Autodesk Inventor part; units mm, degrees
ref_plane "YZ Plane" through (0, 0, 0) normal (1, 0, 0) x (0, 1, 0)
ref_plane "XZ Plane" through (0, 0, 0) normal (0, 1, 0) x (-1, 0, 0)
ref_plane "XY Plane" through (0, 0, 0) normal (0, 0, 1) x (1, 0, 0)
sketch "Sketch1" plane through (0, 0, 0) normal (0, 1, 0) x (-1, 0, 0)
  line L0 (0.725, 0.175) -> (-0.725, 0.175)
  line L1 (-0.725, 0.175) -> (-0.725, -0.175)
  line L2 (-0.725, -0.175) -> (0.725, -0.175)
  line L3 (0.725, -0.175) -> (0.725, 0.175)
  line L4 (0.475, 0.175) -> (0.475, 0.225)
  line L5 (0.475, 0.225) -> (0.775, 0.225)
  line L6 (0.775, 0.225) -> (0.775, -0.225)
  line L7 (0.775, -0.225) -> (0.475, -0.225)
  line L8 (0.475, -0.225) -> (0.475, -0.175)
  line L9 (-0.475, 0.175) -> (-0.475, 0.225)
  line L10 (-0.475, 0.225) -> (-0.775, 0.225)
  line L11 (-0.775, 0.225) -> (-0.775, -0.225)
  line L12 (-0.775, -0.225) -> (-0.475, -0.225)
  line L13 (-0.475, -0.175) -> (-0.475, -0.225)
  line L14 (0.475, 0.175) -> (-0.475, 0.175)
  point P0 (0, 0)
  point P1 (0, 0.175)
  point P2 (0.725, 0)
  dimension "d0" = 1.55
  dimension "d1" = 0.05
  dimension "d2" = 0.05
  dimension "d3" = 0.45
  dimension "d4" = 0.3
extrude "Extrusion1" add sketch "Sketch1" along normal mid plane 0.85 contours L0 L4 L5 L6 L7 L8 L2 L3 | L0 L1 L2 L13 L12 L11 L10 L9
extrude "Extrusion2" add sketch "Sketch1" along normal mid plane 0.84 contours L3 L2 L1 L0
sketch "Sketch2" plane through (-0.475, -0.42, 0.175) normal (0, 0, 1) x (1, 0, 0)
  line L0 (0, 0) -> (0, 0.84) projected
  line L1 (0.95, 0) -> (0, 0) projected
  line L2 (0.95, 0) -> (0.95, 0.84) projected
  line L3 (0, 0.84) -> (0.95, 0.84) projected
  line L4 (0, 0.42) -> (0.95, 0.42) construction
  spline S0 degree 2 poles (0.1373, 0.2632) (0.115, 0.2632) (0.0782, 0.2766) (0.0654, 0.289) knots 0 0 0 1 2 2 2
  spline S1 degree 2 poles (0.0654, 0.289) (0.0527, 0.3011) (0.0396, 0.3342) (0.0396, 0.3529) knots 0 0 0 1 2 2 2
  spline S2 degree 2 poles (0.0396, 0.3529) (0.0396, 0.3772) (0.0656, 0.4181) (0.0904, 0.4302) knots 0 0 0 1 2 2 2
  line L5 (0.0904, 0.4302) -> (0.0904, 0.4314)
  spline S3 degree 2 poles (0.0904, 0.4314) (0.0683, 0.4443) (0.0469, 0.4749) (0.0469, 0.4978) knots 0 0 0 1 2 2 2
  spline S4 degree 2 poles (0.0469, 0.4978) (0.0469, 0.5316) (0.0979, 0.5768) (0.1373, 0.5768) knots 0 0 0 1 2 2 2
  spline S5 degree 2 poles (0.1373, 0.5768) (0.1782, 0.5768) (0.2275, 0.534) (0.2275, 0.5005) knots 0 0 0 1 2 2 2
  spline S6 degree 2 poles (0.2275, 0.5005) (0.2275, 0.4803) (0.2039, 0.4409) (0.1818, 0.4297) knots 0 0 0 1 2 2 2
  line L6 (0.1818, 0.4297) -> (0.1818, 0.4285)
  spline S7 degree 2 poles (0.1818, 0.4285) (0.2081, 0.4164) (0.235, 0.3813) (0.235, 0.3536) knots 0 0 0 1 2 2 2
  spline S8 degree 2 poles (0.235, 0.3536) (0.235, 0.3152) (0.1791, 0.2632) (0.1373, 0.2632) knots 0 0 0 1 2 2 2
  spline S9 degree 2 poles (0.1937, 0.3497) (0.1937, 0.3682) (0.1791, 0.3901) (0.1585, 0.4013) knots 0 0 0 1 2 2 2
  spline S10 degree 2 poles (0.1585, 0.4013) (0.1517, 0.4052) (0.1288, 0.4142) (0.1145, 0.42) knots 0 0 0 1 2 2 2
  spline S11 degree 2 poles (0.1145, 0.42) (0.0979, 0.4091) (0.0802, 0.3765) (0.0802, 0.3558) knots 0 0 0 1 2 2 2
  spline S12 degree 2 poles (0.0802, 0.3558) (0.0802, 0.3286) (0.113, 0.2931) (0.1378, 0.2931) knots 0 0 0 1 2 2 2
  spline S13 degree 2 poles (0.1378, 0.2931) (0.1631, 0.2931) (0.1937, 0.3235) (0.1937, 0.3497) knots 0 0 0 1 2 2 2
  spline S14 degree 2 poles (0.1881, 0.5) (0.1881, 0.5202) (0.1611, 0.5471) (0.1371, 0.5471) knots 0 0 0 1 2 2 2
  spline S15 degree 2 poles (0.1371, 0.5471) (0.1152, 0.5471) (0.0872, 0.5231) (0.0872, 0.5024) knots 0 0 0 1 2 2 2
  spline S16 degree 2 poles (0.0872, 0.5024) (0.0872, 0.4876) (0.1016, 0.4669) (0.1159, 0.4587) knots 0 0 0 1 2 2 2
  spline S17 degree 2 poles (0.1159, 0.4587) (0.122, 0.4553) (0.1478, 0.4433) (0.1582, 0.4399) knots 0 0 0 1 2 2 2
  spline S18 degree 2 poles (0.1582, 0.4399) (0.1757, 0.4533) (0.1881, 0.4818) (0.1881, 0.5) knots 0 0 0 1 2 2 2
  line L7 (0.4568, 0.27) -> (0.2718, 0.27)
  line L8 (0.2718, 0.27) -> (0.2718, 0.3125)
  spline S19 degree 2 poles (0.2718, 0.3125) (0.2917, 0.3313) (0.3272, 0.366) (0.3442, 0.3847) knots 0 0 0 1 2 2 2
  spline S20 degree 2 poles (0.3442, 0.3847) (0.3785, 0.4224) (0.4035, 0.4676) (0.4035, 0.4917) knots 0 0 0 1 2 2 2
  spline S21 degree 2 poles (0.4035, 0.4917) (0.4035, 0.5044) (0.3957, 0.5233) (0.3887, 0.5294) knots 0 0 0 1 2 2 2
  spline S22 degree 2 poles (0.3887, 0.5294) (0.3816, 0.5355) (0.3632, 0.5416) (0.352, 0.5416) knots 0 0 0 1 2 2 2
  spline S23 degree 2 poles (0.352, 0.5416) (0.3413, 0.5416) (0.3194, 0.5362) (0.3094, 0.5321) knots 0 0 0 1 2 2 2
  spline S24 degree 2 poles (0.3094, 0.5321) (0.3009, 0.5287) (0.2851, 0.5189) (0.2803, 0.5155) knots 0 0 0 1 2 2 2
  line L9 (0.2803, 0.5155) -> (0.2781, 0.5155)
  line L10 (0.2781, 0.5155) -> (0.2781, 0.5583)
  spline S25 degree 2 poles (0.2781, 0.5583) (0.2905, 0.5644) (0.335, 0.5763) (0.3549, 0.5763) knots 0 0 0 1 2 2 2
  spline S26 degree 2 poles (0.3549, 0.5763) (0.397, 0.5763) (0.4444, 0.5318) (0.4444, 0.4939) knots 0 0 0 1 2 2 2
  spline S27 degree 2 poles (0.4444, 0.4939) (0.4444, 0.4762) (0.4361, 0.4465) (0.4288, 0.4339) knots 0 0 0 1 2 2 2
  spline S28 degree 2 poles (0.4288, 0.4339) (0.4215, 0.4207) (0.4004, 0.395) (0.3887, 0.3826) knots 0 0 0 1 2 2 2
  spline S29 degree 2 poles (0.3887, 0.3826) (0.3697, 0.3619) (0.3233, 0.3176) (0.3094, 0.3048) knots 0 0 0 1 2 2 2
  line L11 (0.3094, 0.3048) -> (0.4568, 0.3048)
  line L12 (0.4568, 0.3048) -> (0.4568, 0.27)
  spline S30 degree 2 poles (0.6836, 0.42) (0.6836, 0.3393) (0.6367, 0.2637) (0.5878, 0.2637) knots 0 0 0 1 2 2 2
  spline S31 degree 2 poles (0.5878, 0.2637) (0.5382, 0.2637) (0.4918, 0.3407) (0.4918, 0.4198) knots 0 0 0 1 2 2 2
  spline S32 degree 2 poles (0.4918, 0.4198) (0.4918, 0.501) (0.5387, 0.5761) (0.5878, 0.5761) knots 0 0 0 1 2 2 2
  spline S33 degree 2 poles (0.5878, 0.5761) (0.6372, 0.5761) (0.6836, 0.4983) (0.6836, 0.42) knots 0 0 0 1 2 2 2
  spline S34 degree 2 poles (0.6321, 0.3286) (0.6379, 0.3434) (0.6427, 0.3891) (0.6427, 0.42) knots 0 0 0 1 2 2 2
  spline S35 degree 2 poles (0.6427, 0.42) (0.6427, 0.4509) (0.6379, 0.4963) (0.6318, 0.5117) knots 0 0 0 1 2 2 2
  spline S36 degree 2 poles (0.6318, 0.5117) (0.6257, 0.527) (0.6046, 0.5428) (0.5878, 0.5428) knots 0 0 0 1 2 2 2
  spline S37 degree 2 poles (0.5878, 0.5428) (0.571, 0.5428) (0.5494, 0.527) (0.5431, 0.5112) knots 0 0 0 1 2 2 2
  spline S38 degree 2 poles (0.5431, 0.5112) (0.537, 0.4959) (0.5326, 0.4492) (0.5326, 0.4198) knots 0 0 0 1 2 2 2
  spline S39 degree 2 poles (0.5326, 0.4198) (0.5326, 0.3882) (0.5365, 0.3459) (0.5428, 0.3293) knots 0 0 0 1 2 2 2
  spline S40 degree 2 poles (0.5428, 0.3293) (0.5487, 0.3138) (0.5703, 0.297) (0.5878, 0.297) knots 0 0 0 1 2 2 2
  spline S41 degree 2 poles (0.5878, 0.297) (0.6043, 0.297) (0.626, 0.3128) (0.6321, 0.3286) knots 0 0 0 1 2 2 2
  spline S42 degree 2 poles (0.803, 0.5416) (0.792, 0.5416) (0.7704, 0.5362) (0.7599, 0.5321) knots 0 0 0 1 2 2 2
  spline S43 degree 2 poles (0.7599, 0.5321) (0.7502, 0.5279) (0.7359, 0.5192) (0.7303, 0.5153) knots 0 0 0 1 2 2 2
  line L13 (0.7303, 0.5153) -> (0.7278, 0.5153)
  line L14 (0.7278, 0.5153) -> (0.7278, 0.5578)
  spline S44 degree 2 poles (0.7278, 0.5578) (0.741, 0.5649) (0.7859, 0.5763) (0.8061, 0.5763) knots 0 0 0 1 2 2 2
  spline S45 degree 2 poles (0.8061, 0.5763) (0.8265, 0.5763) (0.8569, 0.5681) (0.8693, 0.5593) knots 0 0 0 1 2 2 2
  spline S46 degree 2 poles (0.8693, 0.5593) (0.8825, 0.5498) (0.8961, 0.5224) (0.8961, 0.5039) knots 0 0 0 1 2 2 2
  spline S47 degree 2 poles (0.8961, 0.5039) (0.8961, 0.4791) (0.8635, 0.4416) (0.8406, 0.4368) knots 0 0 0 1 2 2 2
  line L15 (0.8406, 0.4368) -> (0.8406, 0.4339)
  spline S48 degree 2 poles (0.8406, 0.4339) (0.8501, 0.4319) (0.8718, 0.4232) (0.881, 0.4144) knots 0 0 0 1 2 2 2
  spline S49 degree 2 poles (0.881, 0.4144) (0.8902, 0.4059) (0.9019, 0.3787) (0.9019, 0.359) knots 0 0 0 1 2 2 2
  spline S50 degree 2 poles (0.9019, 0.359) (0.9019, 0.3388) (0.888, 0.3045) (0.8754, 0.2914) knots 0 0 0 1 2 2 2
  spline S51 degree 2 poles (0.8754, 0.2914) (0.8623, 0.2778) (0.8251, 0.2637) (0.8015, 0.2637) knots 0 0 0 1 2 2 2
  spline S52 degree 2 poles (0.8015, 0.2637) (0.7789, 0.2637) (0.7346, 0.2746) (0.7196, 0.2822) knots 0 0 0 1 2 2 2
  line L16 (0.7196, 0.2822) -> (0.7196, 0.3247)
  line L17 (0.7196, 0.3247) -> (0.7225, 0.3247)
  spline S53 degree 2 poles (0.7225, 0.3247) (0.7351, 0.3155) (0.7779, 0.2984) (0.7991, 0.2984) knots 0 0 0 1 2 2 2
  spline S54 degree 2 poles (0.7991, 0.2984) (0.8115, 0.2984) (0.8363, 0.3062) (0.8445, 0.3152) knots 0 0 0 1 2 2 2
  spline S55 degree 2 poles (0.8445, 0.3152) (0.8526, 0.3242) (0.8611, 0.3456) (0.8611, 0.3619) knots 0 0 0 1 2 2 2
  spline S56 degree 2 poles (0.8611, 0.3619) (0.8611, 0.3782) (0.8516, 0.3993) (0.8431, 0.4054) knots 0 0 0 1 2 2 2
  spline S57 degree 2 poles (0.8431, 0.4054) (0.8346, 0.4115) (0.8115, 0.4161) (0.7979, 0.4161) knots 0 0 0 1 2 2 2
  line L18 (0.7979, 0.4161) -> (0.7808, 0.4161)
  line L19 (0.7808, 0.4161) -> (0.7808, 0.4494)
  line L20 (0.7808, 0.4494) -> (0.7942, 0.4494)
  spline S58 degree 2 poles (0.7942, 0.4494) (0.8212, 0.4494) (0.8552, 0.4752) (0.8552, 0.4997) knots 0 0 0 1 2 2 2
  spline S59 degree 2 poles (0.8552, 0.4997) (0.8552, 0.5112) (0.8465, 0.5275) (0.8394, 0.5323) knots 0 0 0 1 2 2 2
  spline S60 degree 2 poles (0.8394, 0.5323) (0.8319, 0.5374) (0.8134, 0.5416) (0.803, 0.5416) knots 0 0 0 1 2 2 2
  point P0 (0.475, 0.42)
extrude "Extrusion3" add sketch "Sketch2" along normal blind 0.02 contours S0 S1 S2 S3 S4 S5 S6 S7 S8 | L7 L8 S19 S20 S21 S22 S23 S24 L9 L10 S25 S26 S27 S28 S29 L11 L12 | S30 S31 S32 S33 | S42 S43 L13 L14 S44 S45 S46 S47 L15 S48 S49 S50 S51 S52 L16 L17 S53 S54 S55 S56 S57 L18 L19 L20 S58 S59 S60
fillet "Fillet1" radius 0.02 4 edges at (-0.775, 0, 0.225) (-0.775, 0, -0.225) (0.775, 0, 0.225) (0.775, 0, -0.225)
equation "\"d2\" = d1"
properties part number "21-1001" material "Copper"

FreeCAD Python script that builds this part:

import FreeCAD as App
import Part
import Sketcher


def edges_at(feature, points):
    """Names of the edges that pass closest to the given points."""
    edges = feature.Shape.Edges
    near = lambda p: min(range(len(edges)), key=lambda i: edges[i].distToShape(Part.Vertex(*p))[0])
    return sorted({f"Edge{near(p) + 1}" for p in points})


def add_polygon(sketch, points):
    """Adds a closed chain of lines whose ends are joined by coincident constraints."""
    first, n = sketch.GeometryCount, len(points)
    for a, b in zip(points, points[1:] + points[:1]):
        sketch.addGeometry(Part.LineSegment(App.Vector(*a, 0), App.Vector(*b, 0)), False)
    for i in range(n):
        sketch.addConstraint(Sketcher.Constraint("Coincident", first + i, 2, first + (i + 1) % n, 1))

doc = App.newDocument("Part")
body = doc.addObject("PartDesign::Body", "Body")
body.AllowCompound = True

# Sketch on XZ plane
sketch1 = body.newObject("Sketcher::SketchObject", "Sketch")
sketch1.AttachmentSupport = (doc.getObject("XZ_Plane"), [""])
sketch1.MapMode = "FlatFace"
add_polygon(sketch1, [(-0.47, 0.17), (-0.72, 0.17), (-0.72, -0.17), (-0.47, -0.17), (-0.47, -0.23), (-0.78, -0.23), (-0.78, 0.23), (-0.47, 0.23)])  # lines 0-7
add_polygon(sketch1, [(0.72, 0.17), (0.47, 0.17), (0.47, 0.23), (0.78, 0.23), (0.78, -0.23), (0.47, -0.23), (0.47, -0.17), (0.72, -0.17)])  # lines 8-15
sketch1.addConstraint(Sketcher.Constraint("Horizontal", 0))
sketch1.addConstraint(Sketcher.Constraint("Vertical", 1))
sketch1.addConstraint(Sketcher.Constraint("Horizontal", 2))
sketch1.addConstraint(Sketcher.Constraint("Vertical", 3))
sketch1.addConstraint(Sketcher.Constraint("Horizontal", 4))
sketch1.addConstraint(Sketcher.Constraint("Vertical", 5))
sketch1.addConstraint(Sketcher.Constraint("Horizontal", 6))
sketch1.addConstraint(Sketcher.Constraint("Vertical", 7))
sketch1.addConstraint(Sketcher.Constraint("Horizontal", 8))
sketch1.addConstraint(Sketcher.Constraint("Vertical", 9))
sketch1.addConstraint(Sketcher.Constraint("Horizontal", 10))
sketch1.addConstraint(Sketcher.Constraint("Vertical", 11))
sketch1.addConstraint(Sketcher.Constraint("Horizontal", 12))
sketch1.addConstraint(Sketcher.Constraint("Vertical", 13))
sketch1.addConstraint(Sketcher.Constraint("Horizontal", 14))
sketch1.addConstraint(Sketcher.Constraint("Vertical", 15))
sketch1.addConstraint(Sketcher.Constraint("Symmetric", 2, 2, 8, 2, -1, 1))
sketch1.addConstraint(Sketcher.Constraint("Symmetric", 4, 2, 10, 2, -1, 1))
sketch1.addConstraint(Sketcher.Constraint("Symmetric", 6, 2, 12, 2, -1, 1))
sketch1.addConstraint(Sketcher.Constraint("Symmetric", 0, 2, 14, 2, -1, 1))
sketch1.addConstraint(Sketcher.Constraint("Symmetric", 7, 2, 8, 2, -2))
sketch1.addConstraint(Sketcher.Constraint("Horizontal", 6, 2, 9, 2))
sketch1.addConstraint(Sketcher.Constraint("DistanceX", 4, 2, 4, 1, 0.3))
sketch1.addConstraint(Sketcher.Constraint("DistanceY", 3, 2, 3, 1, 0.05))
sketch1.addConstraint(Sketcher.Constraint("DistanceY", 5, 1, 5, 2, 0.45))
sketch1.addConstraint(Sketcher.Constraint("DistanceX", 4, 2, 1, 2, 0.05))
sketch1.addConstraint(Sketcher.Constraint("DistanceX", 0, 2, 8, 2, 1.2))
pad1 = body.newObject("PartDesign::Pad", "Pad")
pad1.Profile = sketch1
pad1.Length = 0.85
pad1.Midplane = True

# Sketch on XZ plane
sketch2 = body.newObject("Sketcher::SketchObject", "Sketch001")
sketch2.AttachmentSupport = (doc.getObject("XZ_Plane"), [""])
sketch2.MapMode = "FlatFace"
add_polygon(sketch2, [(-0.72, -0.17), (-0.72, 0.17), (0.72, 0.17), (0.72, -0.17)])  # lines 0-3
sketch2.addConstraint(Sketcher.Constraint("Vertical", 0))
sketch2.addConstraint(Sketcher.Constraint("Horizontal", 1))
sketch2.addConstraint(Sketcher.Constraint("Vertical", 2))
sketch2.addConstraint(Sketcher.Constraint("Horizontal", 3))
sketch2.addConstraint(Sketcher.Constraint("Symmetric", 0, 2, 2, 2, -1, 1))
sketch2.addConstraint(Sketcher.Constraint("DistanceX", 1, 1, 1, 2, 1.45))
sketch2.addConstraint(Sketcher.Constraint("DistanceY", 0, 1, 0, 2, 0.35))
pad2 = body.newObject("PartDesign::Pad", "Pad001")
pad2.Profile = sketch2
pad2.Length = 0.84
pad2.Midplane = True

# Sketch on XY plane
sketch3 = body.newObject("Sketcher::SketchObject", "Sketch002")
sketch3.AttachmentSupport = (doc.getObject("XY_Plane"), [""])
sketch3.MapMode = "FlatFace"
sketch3.AttachmentOffset = App.Placement(App.Vector(0, 0, 0.175), App.Rotation())
sketch3.addGeometry(Part.BSplineCurve([App.Vector(-0.3377, -0.1568, 0), App.Vector(-0.36, -0.1568, 0), App.Vector(-0.3968, -0.1434, 0), App.Vector(-0.4096, -0.131, 0)], [3, 1, 3], [0, 1, 2], False, 2, [1, 1, 1, 1], False), False)
sketch3.addGeometry(Part.BSplineCurve([App.Vector(-0.24, -0.0664, 0), App.Vector(-0.24, -0.1048, 0), App.Vector(-0.2959, -0.1568, 0), App.Vector(-0.3377, -0.1568, 0)], [3, 1, 3], [0, 1, 2], False, 2, [1, 1, 1, 1], False), False)
sketch3.addGeometry(Part.BSplineCurve([App.Vector(-0.2932, 0.0097, 0), App.Vector(-0.2669, -0.0036, 0), App.Vector(-0.24, -0.0387, 0), App.Vector(-0.24, -0.0664, 0)], [3, 1, 3], [0, 1, 2], False, 2, [1, 1, 1, 1], False), False)
sketch3.addGeometry(Part.BSplineCurve([App.Vector(-0.2475, 0.0805, 0), App.Vector(-0.2475, 0.0603, 0), App.Vector(-0.2711, 0.0209, 0), App.Vector(-0.2932, 0.0097, 0)], [3, 1, 3], [0, 1, 2], False, 2, [1, 1, 1, 1], False), False)
sketch3.addGeometry(Part.BSplineCurve([App.Vector(-0.3377, 0.1568, 0), App.Vector(-0.2968, 0.1568, 0), App.Vector(-0.2475, 0.114, 0), App.Vector(-0.2475, 0.0805, 0)], [3, 1, 3], [0, 1, 2], False, 2, [1, 1, 1, 1], False), False)
sketch3.addGeometry(Part.BSplineCurve([App.Vector(-0.4281, 0.0778, 0), App.Vector(-0.4281, 0.1116, 0), App.Vector(-0.3771, 0.1568, 0), App.Vector(-0.3377, 0.1568, 0)], [3, 1, 3], [0, 1, 2], False, 2, [1, 1, 1, 1], False), False)
sketch3.addGeometry(Part.BSplineCurve([App.Vector(-0.3846, 0.0102, 0), App.Vector(-0.4067, 0.0243, 0), App.Vector(-0.4281, 0.0549, 0), App.Vector(-0.4281, 0.0778, 0)], [3, 1, 3], [0, 1, 2], False, 2, [1, 1, 1, 1], False), False)
sketch3.addGeometry(Part.BSplineCurve([App.Vector(-0.4354, -0.0671, 0), App.Vector(-0.4354, -0.0428, 0), App.Vector(-0.4094, -0.0019, 0), App.Vector(-0.3846, 0.0102, 0)], [3, 1, 3], [0, 1, 2], False, 2, [1, 1, 1, 1], False), False)
sketch3.addGeometry(Part.BSplineCurve([App.Vector(-0.4096, -0.131, 0), App.Vector(-0.4223, -0.1189, 0), App.Vector(-0.4354, -0.0858, 0), App.Vector(-0.4354, -0.0671, 0)], [3, 1, 3], [0, 1, 2], False, 2, [1, 1, 1, 1], False), False)
sketch3.addGeometry(Part.BSplineCurve([App.Vector(-0.2813, -0.0703, 0), App.Vector(-0.2813, -0.0518, 0), App.Vector(-0.2959, -0.0299, 0), App.Vector(-0.3165, -0.0187, 0)], [3, 1, 3], [0, 1, 2], False, 2, [1, 1, 1, 1], False), False)
sketch3.addGeometry(Part.BSplineCurve([App.Vector(-0.3372, -0.1269, 0), App.Vector(-0.3119, -0.1269, 0), App.Vector(-0.2813, -0.0965, 0), App.Vector(-0.2813, -0.0703, 0)], [3, 1, 3], [0, 1, 2], False, 2, [1, 1, 1, 1], False), False)
sketch3.addGeometry(Part.BSplineCurve([App.Vector(-0.3948, -0.0642, 0), App.Vector(-0.3948, -0.0914, 0), App.Vector(-0.362, -0.1269, 0), App.Vector(-0.3372, -0.1269, 0)], [3, 1, 3], [0, 1, 2], False, 2, [1, 1, 1, 1], False), False)
sketch3.addGeometry(Part.BSplineCurve([App.Vector(-0.3605, 0, 0), App.Vector(-0.3771, -0.0109, 0), App.Vector(-0.3948, -0.0435, 0), App.Vector(-0.3948, -0.0642, 0)], [3, 1, 3], [0, 1, 2], False, 2, [1, 1, 1, 1], False), False)
sketch3.addGeometry(Part.BSplineCurve([App.Vector(-0.3165, -0.0187, 0), App.Vector(-0.3233, -0.0148, 0), App.Vector(-0.3462, -0.0058, 0), App.Vector(-0.3605, 0, 0)], [3, 1, 3], [0, 1, 2], False, 2, [1, 1, 1, 1], False), False)
sketch3.addGeometry(Part.BSplineCurve([App.Vector(-0.2869, 0.08, 0), App.Vector(-0.2869, 0.1002, 0), App.Vector(-0.3139, 0.1271, 0), App.Vector(-0.3379, 0.1271, 0)], [3, 1, 3], [0, 1, 2], False, 2, [1, 1, 1, 1], False), False)
sketch3.addGeometry(Part.BSplineCurve([App.Vector(-0.3168, 0.0199, 0), App.Vector(-0.2993, 0.0333, 0), App.Vector(-0.2869, 0.0618, 0), App.Vector(-0.2869, 0.08, 0)], [3, 1, 3], [0, 1, 2], False, 2, [1, 1, 1, 1], False), False)
sketch3.addGeometry(Part.BSplineCurve([App.Vector(-0.3591, 0.0387, 0), App.Vector(-0.353, 0.0353, 0), App.Vector(-0.3272, 0.0233, 0), App.Vector(-0.3168, 0.0199, 0)], [3, 1, 3], [0, 1, 2], False, 2, [1, 1, 1, 1], False), False)
sketch3.addGeometry(Part.BSplineCurve([App.Vector(-0.3878, 0.0824, 0), App.Vector(-0.3878, 0.0676, 0), App.Vector(-0.3734, 0.0469, 0), App.Vector(-0.3591, 0.0387, 0)], [3, 1, 3], [0, 1, 2], False, 2, [1, 1, 1, 1], False), False)
sketch3.addGeometry(Part.BSplineCurve([App.Vector(-0.3379, 0.1271, 0), App.Vector(-0.3598, 0.1271, 0), App.Vector(-0.3878, 0.1031, 0), App.Vector(-0.3878, 0.0824, 0)], [3, 1, 3], [0, 1, 2], False, 2, [1, 1, 1, 1], False), False)
sketch3.addGeometry(Part.LineSegment(App.Vector(-0.2032, -0.15, 0), App.Vector(-0.0182, -0.15, 0)), False)
sketch3.addGeometry(Part.LineSegment(App.Vector(-0.0182, -0.15, 0), App.Vector(-0.0182, -0.1152, 0)), False)
sketch3.addGeometry(Part.LineSegment(App.Vector(-0.0182, -0.1152, 0), App.Vector(-0.1656, -0.1152, 0)), False)
sketch3.addGeometry(Part.BSplineCurve([App.Vector(-0.0863, -0.0374, 0), App.Vector(-0.1053, -0.0581, 0), App.Vector(-0.1517, -0.1024, 0), App.Vector(-0.1656, -0.1152, 0)], [3, 1, 3], [0, 1, 2], False, 2, [1, 1, 1, 1], False), False)
sketch3.addGeometry(Part.BSplineCurve([App.Vector(-0.0462, 0.0139, 0), App.Vector(-0.0535, 0.0007, 0), App.Vector(-0.0746, -0.025, 0), App.Vector(-0.0863, -0.0374, 0)], [3, 1, 3], [0, 1, 2], False, 2, [1, 1, 1, 1], False), False)
sketch3.addGeometry(Part.BSplineCurve([App.Vector(-0.0306, 0.0739, 0), App.Vector(-0.0306, 0.0562, 0), App.Vector(-0.0389, 0.0265, 0), App.Vector(-0.0462, 0.0139, 0)], [3, 1, 3], [0, 1, 2], False, 2, [1, 1, 1, 1], False), False)
sketch3.addGeometry(Part.BSplineCurve([App.Vector(-0.1201, 0.1563, 0), App.Vector(-0.078, 0.1563, 0), App.Vector(-0.0306, 0.1118, 0), App.Vector(-0.0306, 0.0739, 0)], [3, 1, 3], [0, 1, 2], False, 2, [1, 1, 1, 1], False), False)
sketch3.addGeometry(Part.BSplineCurve([App.Vector(-0.1969, 0.1383, 0), App.Vector(-0.1845, 0.1444, 0), App.Vector(-0.14, 0.1563, 0), App.Vector(-0.1201, 0.1563, 0)], [3, 1, 3], [0, 1, 2], False, 2, [1, 1, 1, 1], False), False)
sketch3.addGeometry(Part.LineSegment(App.Vector(-0.1969, 0.1383, 0), App.Vector(-0.1969, 0.0955, 0)), False)
sketch3.addGeometry(Part.LineSegment(App.Vector(-0.1969, 0.0955, 0), App.Vector(-0.1947, 0.0955, 0)), False)
sketch3.addGeometry(Part.BSplineCurve([App.Vector(-0.1656, 0.1121, 0), App.Vector(-0.1741, 0.1087, 0), App.Vector(-0.1899, 0.0989, 0), App.Vector(-0.1947, 0.0955, 0)], [3, 1, 3], [0, 1, 2], False, 2, [1, 1, 1, 1], False), False)
sketch3.addGeometry(Part.BSplineCurve([App.Vector(-0.123, 0.1216, 0), App.Vector(-0.1337, 0.1216, 0), App.Vector(-0.1556, 0.1162, 0), App.Vector(-0.1656, 0.1121, 0)], [3, 1, 3], [0, 1, 2], False, 2, [1, 1, 1, 1], False), False)
sketch3.addGeometry(Part.BSplineCurve([App.Vector(-0.0863, 0.1094, 0), App.Vector(-0.0934, 0.1155, 0), App.Vector(-0.1118, 0.1216, 0), App.Vector(-0.123, 0.1216, 0)], [3, 1, 3], [0, 1, 2], False, 2, [1, 1, 1, 1], False), False)
sketch3.addGeometry(Part.BSplineCurve([App.Vector(-0.0715, 0.0717, 0), App.Vector(-0.0715, 0.0844, 0), App.Vector(-0.0793, 0.1033, 0), App.Vector(-0.0863, 0.1094, 0)], [3, 1, 3], [0, 1, 2], False, 2, [1, 1, 1, 1], False), False)
sketch3.addGeometry(Part.BSplineCurve([App.Vector(-0.1308, -0.0353, 0), App.Vector(-0.0965, 0.0024, 0), App.Vector(-0.0715, 0.0476, 0), App.Vector(-0.0715, 0.0717, 0)], [3, 1, 3], [0, 1, 2], False, 2, [1, 1, 1, 1], False), False)
sketch3.addGeometry(Part.BSplineCurve([App.Vector(-0.2032, -0.1075, 0), App.Vector(-0.1833, -0.0887, 0), App.Vector(-0.1478, -0.054, 0), App.Vector(-0.1308, -0.0353, 0)], [3, 1, 3], [0, 1, 2], False, 2, [1, 1, 1, 1], False), False)
sketch3.addGeometry(Part.LineSegment(App.Vector(-0.2032, -0.1075, 0), App.Vector(-0.2032, -0.15, 0)), False)
sketch3.addGeometry(Part.BSplineCurve([App.Vector(0.2086, 0, 0), App.Vector(0.2086, -0.0807, 0), App.Vector(0.1617, -0.1563, 0), App.Vector(0.1128, -0.1563, 0)], [3, 1, 3], [0, 1, 2], False, 2, [1, 1, 1, 1], False), False)
sketch3.addGeometry(Part.BSplineCurve([App.Vector(0.1128, 0.1561, 0), App.Vector(0.1622, 0.1561, 0), App.Vector(0.2086, 0.0783, 0), App.Vector(0.2086, 0, 0)], [3, 1, 3], [0, 1, 2], False, 2, [1, 1, 1, 1], False), False)
sketch3.addGeometry(Part.BSplineCurve([App.Vector(0.0168, -0.0002, 0), App.Vector(0.0168, 0.081, 0), App.Vector(0.0637, 0.1561, 0), App.Vector(0.1128, 0.1561, 0)], [3, 1, 3], [0, 1, 2], False, 2, [1, 1, 1, 1], False), False)
sketch3.addGeometry(Part.BSplineCurve([App.Vector(0.1128, -0.1563, 0), App.Vector(0.0632, -0.1563, 0), App.Vector(0.0168, -0.0793, 0), App.Vector(0.0168, -0.0002, 0)], [3, 1, 3], [0, 1, 2], False, 2, [1, 1, 1, 1], False), False)
sketch3.addGeometry(Part.BSplineCurve([App.Vector(0.1571, -0.0914, 0), App.Vector(0.1629, -0.0766, 0), App.Vector(0.1677, -0.0309, 0), App.Vector(0.1677, 0, 0)], [3, 1, 3], [0, 1, 2], False, 2, [1, 1, 1, 1], False), False)
sketch3.addGeometry(Part.BSplineCurve([App.Vector(0.1128, -0.123, 0), App.Vector(0.1293, -0.123, 0), App.Vector(0.151, -0.1072, 0), App.Vector(0.1571, -0.0914, 0)], [3, 1, 3], [0, 1, 2], False, 2, [1, 1, 1, 1], False), False)
sketch3.addGeometry(Part.BSplineCurve([App.Vector(0.0678, -0.0907, 0), App.Vector(0.0737, -0.1062, 0), App.Vector(0.0953, -0.123, 0), App.Vector(0.1128, -0.123, 0)], [3, 1, 3], [0, 1, 2], False, 2, [1, 1, 1, 1], False), False)
sketch3.addGeometry(Part.BSplineCurve([App.Vector(0.0576, -0.0002, 0), App.Vector(0.0576, -0.0318, 0), App.Vector(0.0615, -0.0741, 0), App.Vector(0.0678, -0.0907, 0)], [3, 1, 3], [0, 1, 2], False, 2, [1, 1, 1, 1], False), False)
sketch3.addGeometry(Part.BSplineCurve([App.Vector(0.0681, 0.0912, 0), App.Vector(0.062, 0.0759, 0), App.Vector(0.0576, 0.0292, 0), App.Vector(0.0576, -0.0002, 0)], [3, 1, 3], [0, 1, 2], False, 2, [1, 1, 1, 1], False), False)
sketch3.addGeometry(Part.BSplineCurve([App.Vector(0.1128, 0.1228, 0), App.Vector(0.096, 0.1228, 0), App.Vector(0.0744, 0.107, 0), App.Vector(0.0681, 0.0912, 0)], [3, 1, 3], [0, 1, 2], False, 2, [1, 1, 1, 1], False), False)
sketch3.addGeometry(Part.BSplineCurve([App.Vector(0.1568, 0.0917, 0), App.Vector(0.1507, 0.107, 0), App.Vector(0.1296, 0.1228, 0), App.Vector(0.1128, 0.1228, 0)], [3, 1, 3], [0, 1, 2], False, 2, [1, 1, 1, 1], False), False)
sketch3.addGeometry(Part.BSplineCurve([App.Vector(0.1677, 0, 0), App.Vector(0.1677, 0.0309, 0), App.Vector(0.1629, 0.0763, 0), App.Vector(0.1568, 0.0917, 0)], [3, 1, 3], [0, 1, 2], False, 2, [1, 1, 1, 1], False), False)
sketch3.addGeometry(Part.BSplineCurve([App.Vector(0.328, 0.1216, 0), App.Vector(0.317, 0.1216, 0), App.Vector(0.2954, 0.1162, 0), App.Vector(0.2849, 0.1121, 0)], [3, 1, 3], [0, 1, 2], False, 2, [1, 1, 1, 1], False), False)
sketch3.addGeometry(Part.BSplineCurve([App.Vector(0.3644, 0.1123, 0), App.Vector(0.3569, 0.1174, 0), App.Vector(0.3384, 0.1216, 0), App.Vector(0.328, 0.1216, 0)], [3, 1, 3], [0, 1, 2], False, 2, [1, 1, 1, 1], False), False)
sketch3.addGeometry(Part.BSplineCurve([App.Vector(0.3802, 0.0797, 0), App.Vector(0.3802, 0.0912, 0), App.Vector(0.3715, 0.1075, 0), App.Vector(0.3644, 0.1123, 0)], [3, 1, 3], [0, 1, 2], False, 2, [1, 1, 1, 1], False), False)
sketch3.addGeometry(Part.BSplineCurve([App.Vector(0.3192, 0.0294, 0), App.Vector(0.3462, 0.0294, 0), App.Vector(0.3802, 0.0552, 0), App.Vector(0.3802, 0.0797, 0)], [3, 1, 3], [0, 1, 2], False, 2, [1, 1, 1, 1], False), False)
sketch3.addGeometry(Part.LineSegment(App.Vector(0.3192, 0.0294, 0), App.Vector(0.3058, 0.0294, 0)), False)
sketch3.addGeometry(Part.LineSegment(App.Vector(0.3058, 0.0294, 0), App.Vector(0.3058, -0.0039, 0)), False)
sketch3.addGeometry(Part.LineSegment(App.Vector(0.3058, -0.0039, 0), App.Vector(0.3229, -0.0039, 0)), False)
sketch3.addGeometry(Part.BSplineCurve([App.Vector(0.3681, -0.0146, 0), App.Vector(0.3596, -0.0085, 0), App.Vector(0.3365, -0.0039, 0), App.Vector(0.3229, -0.0039, 0)], [3, 1, 3], [0, 1, 2], False, 2, [1, 1, 1, 1], False), False)
sketch3.addGeometry(Part.BSplineCurve([App.Vector(0.3861, -0.0581, 0), App.Vector(0.3861, -0.0418, 0), App.Vector(0.3766, -0.0207, 0), App.Vector(0.3681, -0.0146, 0)], [3, 1, 3], [0, 1, 2], False, 2, [1, 1, 1, 1], False), False)
sketch3.addGeometry(Part.BSplineCurve([App.Vector(0.3695, -0.1048, 0), App.Vector(0.3776, -0.0958, 0), App.Vector(0.3861, -0.0744, 0), App.Vector(0.3861, -0.0581, 0)], [3, 1, 3], [0, 1, 2], False, 2, [1, 1, 1, 1], False), False)
sketch3.addGeometry(Part.BSplineCurve([App.Vector(0.3241, -0.1216, 0), App.Vector(0.3365, -0.1216, 0), App.Vector(0.3613, -0.1138, 0), App.Vector(0.3695, -0.1048, 0)], [3, 1, 3], [0, 1, 2], False, 2, [1, 1, 1, 1], False), False)
sketch3.addGeometry(Part.BSplineCurve([App.Vector(0.2475, -0.0953, 0), App.Vector(0.2601, -0.1045, 0), App.Vector(0.3029, -0.1216, 0), App.Vector(0.3241, -0.1216, 0)], [3, 1, 3], [0, 1, 2], False, 2, [1, 1, 1, 1], False), False)
sketch3.addGeometry(Part.LineSegment(App.Vector(0.2475, -0.0953, 0), App.Vector(0.2446, -0.0953, 0)), False)
sketch3.addGeometry(Part.LineSegment(App.Vector(0.2446, -0.0953, 0), App.Vector(0.2446, -0.1378, 0)), False)
sketch3.addGeometry(Part.BSplineCurve([App.Vector(0.3265, -0.1563, 0), App.Vector(0.3039, -0.1563, 0), App.Vector(0.2596, -0.1454, 0), App.Vector(0.2446, -0.1378, 0)], [3, 1, 3], [0, 1, 2], False, 2, [1, 1, 1, 1], False), False)
sketch3.addGeometry(Part.BSplineCurve([App.Vector(0.4004, -0.1286, 0), App.Vector(0.3873, -0.1422, 0), App.Vector(0.3501, -0.1563, 0), App.Vector(0.3265, -0.1563, 0)], [3, 1, 3], [0, 1, 2], False, 2, [1, 1, 1, 1], False), False)
sketch3.addGeometry(Part.BSplineCurve([App.Vector(0.4269, -0.061, 0), App.Vector(0.4269, -0.0812, 0), App.Vector(0.413, -0.1155, 0), App.Vector(0.4004, -0.1286, 0)], [3, 1, 3], [0, 1, 2], False, 2, [1, 1, 1, 1], False), False)
sketch3.addGeometry(Part.BSplineCurve([App.Vector(0.406, -0.0056, 0), App.Vector(0.4152, -0.0141, 0), App.Vector(0.4269, -0.0413, 0), App.Vector(0.4269, -0.061, 0)], [3, 1, 3], [0, 1, 2], False, 2, [1, 1, 1, 1], False), False)
sketch3.addGeometry(Part.BSplineCurve([App.Vector(0.3656, 0.0139, 0), App.Vector(0.3751, 0.0119, 0), App.Vector(0.3968, 0.0032, 0), App.Vector(0.406, -0.0056, 0)], [3, 1, 3], [0, 1, 2], False, 2, [1, 1, 1, 1], False), False)
sketch3.addGeometry(Part.LineSegment(App.Vector(0.3656, 0.0139, 0), App.Vector(0.3656, 0.0168, 0)), False)
sketch3.addGeometry(Part.BSplineCurve([App.Vector(0.4211, 0.0839, 0), App.Vector(0.4211, 0.0591, 0), App.Vector(0.3885, 0.0216, 0), App.Vector(0.3656, 0.0168, 0)], [3, 1, 3], [0, 1, 2], False, 2, [1, 1, 1, 1], False), False)
sketch3.addGeometry(Part.BSplineCurve([App.Vector(0.3943, 0.1393, 0), App.Vector(0.4075, 0.1298, 0), App.Vector(0.4211, 0.1024, 0), App.Vector(0.4211, 0.0839, 0)], [3, 1, 3], [0, 1, 2], False, 2, [1, 1, 1, 1], False), False)
sketch3.addGeometry(Part.BSplineCurve([App.Vector(0.3311, 0.1563, 0), App.Vector(0.3515, 0.1563, 0), App.Vector(0.3819, 0.1481, 0), App.Vector(0.3943, 0.1393, 0)], [3, 1, 3], [0, 1, 2], False, 2, [1, 1, 1, 1], False), False)
sketch3.addGeometry(Part.BSplineCurve([App.Vector(0.2528, 0.1378, 0), App.Vector(0.266, 0.1449, 0), App.Vector(0.3109, 0.1563, 0), App.Vector(0.3311, 0.1563, 0)], [3, 1, 3], [0, 1, 2], False, 2, [1, 1, 1, 1], False), False)
sketch3.addGeometry(Part.LineSegment(App.Vector(0.2528, 0.1378, 0), App.Vector(0.2528, 0.0953, 0)), False)
sketch3.addGeometry(Part.LineSegment(App.Vector(0.2528, 0.0953, 0), App.Vector(0.2553, 0.0953, 0)), False)
sketch3.addGeometry(Part.BSplineCurve([App.Vector(0.2849, 0.1121, 0), App.Vector(0.2752, 0.1079, 0), App.Vector(0.2609, 0.0992, 0), App.Vector(0.2553, 0.0953, 0)], [3, 1, 3], [0, 1, 2], False, 2, [1, 1, 1, 1], False), False)
sketch3.addConstraint(Sketcher.Constraint("Block", 0))
sketch3.addConstraint(Sketcher.Constraint("Block", 1))
sketch3.addConstraint(Sketcher.Constraint("Block", 2))
sketch3.addConstraint(Sketcher.Constraint("Block", 3))
sketch3.addConstraint(Sketcher.Constraint("Block", 4))
sketch3.addConstraint(Sketcher.Constraint("Block", 5))
sketch3.addConstraint(Sketcher.Constraint("Block", 6))
sketch3.addConstraint(Sketcher.Constraint("Block", 7))
sketch3.addConstraint(Sketcher.Constraint("Block", 8))
sketch3.addConstraint(Sketcher.Constraint("Block", 9))
sketch3.addConstraint(Sketcher.Constraint("Block", 10))
sketch3.addConstraint(Sketcher.Constraint("Block", 11))
sketch3.addConstraint(Sketcher.Constraint("Block", 12))
sketch3.addConstraint(Sketcher.Constraint("Block", 13))
sketch3.addConstraint(Sketcher.Constraint("Block", 14))
sketch3.addConstraint(Sketcher.Constraint("Block", 15))
sketch3.addConstraint(Sketcher.Constraint("Block", 16))
sketch3.addConstraint(Sketcher.Constraint("Block", 17))
sketch3.addConstraint(Sketcher.Constraint("Block", 18))
sketch3.addConstraint(Sketcher.Constraint("Block", 22))
sketch3.addConstraint(Sketcher.Constraint("Block", 23))
sketch3.addConstraint(Sketcher.Constraint("Block", 24))
sketch3.addConstraint(Sketcher.Constraint("Block", 25))
sketch3.addConstraint(Sketcher.Constraint("Block", 26))
sketch3.addConstraint(Sketcher.Constraint("Block", 29))
sketch3.addConstraint(Sketcher.Constraint("Block", 30))
sketch3.addConstraint(Sketcher.Constraint("Block", 31))
sketch3.addConstraint(Sketcher.Constraint("Block", 32))
sketch3.addConstraint(Sketcher.Constraint("Block", 33))
sketch3.addConstraint(Sketcher.Constraint("Block", 34))
sketch3.addConstraint(Sketcher.Constraint("Block", 36))
sketch3.addConstraint(Sketcher.Constraint("Block", 37))
sketch3.addConstraint(Sketcher.Constraint("Block", 38))
sketch3.addConstraint(Sketcher.Constraint("Block", 39))
sketch3.addConstraint(Sketcher.Constraint("Block", 40))
sketch3.addConstraint(Sketcher.Constraint("Block", 41))
sketch3.addConstraint(Sketcher.Constraint("Block", 42))
sketch3.addConstraint(Sketcher.Constraint("Block", 43))
sketch3.addConstraint(Sketcher.Constraint("Block", 44))
sketch3.addConstraint(Sketcher.Constraint("Block", 45))
sketch3.addConstraint(Sketcher.Constraint("Block", 46))
sketch3.addConstraint(Sketcher.Constraint("Block", 47))
sketch3.addConstraint(Sketcher.Constraint("Block", 48))
sketch3.addConstraint(Sketcher.Constraint("Block", 49))
sketch3.addConstraint(Sketcher.Constraint("Block", 50))
sketch3.addConstraint(Sketcher.Constraint("Block", 51))
sketch3.addConstraint(Sketcher.Constraint("Block", 55))
sketch3.addConstraint(Sketcher.Constraint("Block", 56))
sketch3.addConstraint(Sketcher.Constraint("Block", 57))
sketch3.addConstraint(Sketcher.Constraint("Block", 58))
sketch3.addConstraint(Sketcher.Constraint("Block", 59))
sketch3.addConstraint(Sketcher.Constraint("Block", 62))
sketch3.addConstraint(Sketcher.Constraint("Block", 63))
sketch3.addConstraint(Sketcher.Constraint("Block", 64))
sketch3.addConstraint(Sketcher.Constraint("Block", 65))
sketch3.addConstraint(Sketcher.Constraint("Block", 66))
sketch3.addConstraint(Sketcher.Constraint("Block", 68))
sketch3.addConstraint(Sketcher.Constraint("Block", 69))
sketch3.addConstraint(Sketcher.Constraint("Block", 70))
sketch3.addConstraint(Sketcher.Constraint("Block", 71))
sketch3.addConstraint(Sketcher.Constraint("Block", 74))
sketch3.addConstraint(Sketcher.Constraint("Coincident", 19, 2, 20, 1))
sketch3.addConstraint(Sketcher.Constraint("Coincident", 20, 2, 21, 1))
sketch3.addConstraint(Sketcher.Constraint("Coincident", 21, 2, 22, 2))
sketch3.addConstraint(Sketcher.Constraint("Coincident", 26, 1, 27, 1))
sketch3.addConstraint(Sketcher.Constraint("Coincident", 27, 2, 28, 1))
sketch3.addConstraint(Sketcher.Constraint("Coincident", 28, 2, 29, 2))
sketch3.addConstraint(Sketcher.Constraint("Coincident", 34, 1, 35, 1))
sketch3.addConstraint(Sketcher.Constraint("Coincident", 35, 2, 19, 1))
sketch3.addConstraint(Sketcher.Constraint("Coincident", 51, 1, 52, 1))
sketch3.addConstraint(Sketcher.Constraint("Coincident", 52, 2, 53, 1))
sketch3.addConstraint(Sketcher.Constraint("Coincident", 53, 2, 54, 1))
sketch3.addConstraint(Sketcher.Constraint("Coincident", 54, 2, 55, 2))
sketch3.addConstraint(Sketcher.Constraint("Coincident", 59, 1, 60, 1))
sketch3.addConstraint(Sketcher.Constraint("Coincident", 60, 2, 61, 1))
sketch3.addConstraint(Sketcher.Constraint("Coincident", 61, 2, 62, 2))
sketch3.addConstraint(Sketcher.Constraint("Coincident", 66, 1, 67, 1))
sketch3.addConstraint(Sketcher.Constraint("Coincident", 67, 2, 68, 2))
sketch3.addConstraint(Sketcher.Constraint("Coincident", 71, 1, 72, 1))
sketch3.addConstraint(Sketcher.Constraint("Coincident", 72, 2, 73, 1))
sketch3.addConstraint(Sketcher.Constraint("Coincident", 73, 2, 74, 2))
sketch3.addConstraint(Sketcher.Constraint("Horizontal", 19))
sketch3.addConstraint(Sketcher.Constraint("Vertical", 20))
sketch3.addConstraint(Sketcher.Constraint("Horizontal", 21))
sketch3.addConstraint(Sketcher.Constraint("Vertical", 27))
sketch3.addConstraint(Sketcher.Constraint("Horizontal", 28))
sketch3.addConstraint(Sketcher.Constraint("Vertical", 35))
sketch3.addConstraint(Sketcher.Constraint("Horizontal", 52))
sketch3.addConstraint(Sketcher.Constraint("Vertical", 53))
sketch3.addConstraint(Sketcher.Constraint("Horizontal", 54))
sketch3.addConstraint(Sketcher.Constraint("Horizontal", 60))
sketch3.addConstraint(Sketcher.Constraint("Vertical", 61))
sketch3.addConstraint(Sketcher.Constraint("Vertical", 72))
sketch3.addConstraint(Sketcher.Constraint("Horizontal", 73))
sketch3.addConstraint(Sketcher.Constraint("DistanceX", 19, 1, 19, 2, 0.185))
sketch3.addConstraint(Sketcher.Constraint("DistanceX", 54, 1, 54, 2, 0.017))
sketch3.addConstraint(Sketcher.Constraint("DistanceY", 19, 2, -1, 1, 0.15))
pad3 = body.newObject("PartDesign::Pad", "Pad002")
pad3.Profile = sketch3
pad3.Length = 0.02
doc.recompute()

fillet = body.newObject("PartDesign::Fillet", "Fillet")
fillet.Base = (pad3, edges_at(pad3, [
    (-0.775, 0, 0.225),
    (-0.775, 0, -0.225),
    (0.775, 0, 0.225),
    (0.775, 0, -0.225),
]))
fillet.Radius = 0.02

doc.recompute()
